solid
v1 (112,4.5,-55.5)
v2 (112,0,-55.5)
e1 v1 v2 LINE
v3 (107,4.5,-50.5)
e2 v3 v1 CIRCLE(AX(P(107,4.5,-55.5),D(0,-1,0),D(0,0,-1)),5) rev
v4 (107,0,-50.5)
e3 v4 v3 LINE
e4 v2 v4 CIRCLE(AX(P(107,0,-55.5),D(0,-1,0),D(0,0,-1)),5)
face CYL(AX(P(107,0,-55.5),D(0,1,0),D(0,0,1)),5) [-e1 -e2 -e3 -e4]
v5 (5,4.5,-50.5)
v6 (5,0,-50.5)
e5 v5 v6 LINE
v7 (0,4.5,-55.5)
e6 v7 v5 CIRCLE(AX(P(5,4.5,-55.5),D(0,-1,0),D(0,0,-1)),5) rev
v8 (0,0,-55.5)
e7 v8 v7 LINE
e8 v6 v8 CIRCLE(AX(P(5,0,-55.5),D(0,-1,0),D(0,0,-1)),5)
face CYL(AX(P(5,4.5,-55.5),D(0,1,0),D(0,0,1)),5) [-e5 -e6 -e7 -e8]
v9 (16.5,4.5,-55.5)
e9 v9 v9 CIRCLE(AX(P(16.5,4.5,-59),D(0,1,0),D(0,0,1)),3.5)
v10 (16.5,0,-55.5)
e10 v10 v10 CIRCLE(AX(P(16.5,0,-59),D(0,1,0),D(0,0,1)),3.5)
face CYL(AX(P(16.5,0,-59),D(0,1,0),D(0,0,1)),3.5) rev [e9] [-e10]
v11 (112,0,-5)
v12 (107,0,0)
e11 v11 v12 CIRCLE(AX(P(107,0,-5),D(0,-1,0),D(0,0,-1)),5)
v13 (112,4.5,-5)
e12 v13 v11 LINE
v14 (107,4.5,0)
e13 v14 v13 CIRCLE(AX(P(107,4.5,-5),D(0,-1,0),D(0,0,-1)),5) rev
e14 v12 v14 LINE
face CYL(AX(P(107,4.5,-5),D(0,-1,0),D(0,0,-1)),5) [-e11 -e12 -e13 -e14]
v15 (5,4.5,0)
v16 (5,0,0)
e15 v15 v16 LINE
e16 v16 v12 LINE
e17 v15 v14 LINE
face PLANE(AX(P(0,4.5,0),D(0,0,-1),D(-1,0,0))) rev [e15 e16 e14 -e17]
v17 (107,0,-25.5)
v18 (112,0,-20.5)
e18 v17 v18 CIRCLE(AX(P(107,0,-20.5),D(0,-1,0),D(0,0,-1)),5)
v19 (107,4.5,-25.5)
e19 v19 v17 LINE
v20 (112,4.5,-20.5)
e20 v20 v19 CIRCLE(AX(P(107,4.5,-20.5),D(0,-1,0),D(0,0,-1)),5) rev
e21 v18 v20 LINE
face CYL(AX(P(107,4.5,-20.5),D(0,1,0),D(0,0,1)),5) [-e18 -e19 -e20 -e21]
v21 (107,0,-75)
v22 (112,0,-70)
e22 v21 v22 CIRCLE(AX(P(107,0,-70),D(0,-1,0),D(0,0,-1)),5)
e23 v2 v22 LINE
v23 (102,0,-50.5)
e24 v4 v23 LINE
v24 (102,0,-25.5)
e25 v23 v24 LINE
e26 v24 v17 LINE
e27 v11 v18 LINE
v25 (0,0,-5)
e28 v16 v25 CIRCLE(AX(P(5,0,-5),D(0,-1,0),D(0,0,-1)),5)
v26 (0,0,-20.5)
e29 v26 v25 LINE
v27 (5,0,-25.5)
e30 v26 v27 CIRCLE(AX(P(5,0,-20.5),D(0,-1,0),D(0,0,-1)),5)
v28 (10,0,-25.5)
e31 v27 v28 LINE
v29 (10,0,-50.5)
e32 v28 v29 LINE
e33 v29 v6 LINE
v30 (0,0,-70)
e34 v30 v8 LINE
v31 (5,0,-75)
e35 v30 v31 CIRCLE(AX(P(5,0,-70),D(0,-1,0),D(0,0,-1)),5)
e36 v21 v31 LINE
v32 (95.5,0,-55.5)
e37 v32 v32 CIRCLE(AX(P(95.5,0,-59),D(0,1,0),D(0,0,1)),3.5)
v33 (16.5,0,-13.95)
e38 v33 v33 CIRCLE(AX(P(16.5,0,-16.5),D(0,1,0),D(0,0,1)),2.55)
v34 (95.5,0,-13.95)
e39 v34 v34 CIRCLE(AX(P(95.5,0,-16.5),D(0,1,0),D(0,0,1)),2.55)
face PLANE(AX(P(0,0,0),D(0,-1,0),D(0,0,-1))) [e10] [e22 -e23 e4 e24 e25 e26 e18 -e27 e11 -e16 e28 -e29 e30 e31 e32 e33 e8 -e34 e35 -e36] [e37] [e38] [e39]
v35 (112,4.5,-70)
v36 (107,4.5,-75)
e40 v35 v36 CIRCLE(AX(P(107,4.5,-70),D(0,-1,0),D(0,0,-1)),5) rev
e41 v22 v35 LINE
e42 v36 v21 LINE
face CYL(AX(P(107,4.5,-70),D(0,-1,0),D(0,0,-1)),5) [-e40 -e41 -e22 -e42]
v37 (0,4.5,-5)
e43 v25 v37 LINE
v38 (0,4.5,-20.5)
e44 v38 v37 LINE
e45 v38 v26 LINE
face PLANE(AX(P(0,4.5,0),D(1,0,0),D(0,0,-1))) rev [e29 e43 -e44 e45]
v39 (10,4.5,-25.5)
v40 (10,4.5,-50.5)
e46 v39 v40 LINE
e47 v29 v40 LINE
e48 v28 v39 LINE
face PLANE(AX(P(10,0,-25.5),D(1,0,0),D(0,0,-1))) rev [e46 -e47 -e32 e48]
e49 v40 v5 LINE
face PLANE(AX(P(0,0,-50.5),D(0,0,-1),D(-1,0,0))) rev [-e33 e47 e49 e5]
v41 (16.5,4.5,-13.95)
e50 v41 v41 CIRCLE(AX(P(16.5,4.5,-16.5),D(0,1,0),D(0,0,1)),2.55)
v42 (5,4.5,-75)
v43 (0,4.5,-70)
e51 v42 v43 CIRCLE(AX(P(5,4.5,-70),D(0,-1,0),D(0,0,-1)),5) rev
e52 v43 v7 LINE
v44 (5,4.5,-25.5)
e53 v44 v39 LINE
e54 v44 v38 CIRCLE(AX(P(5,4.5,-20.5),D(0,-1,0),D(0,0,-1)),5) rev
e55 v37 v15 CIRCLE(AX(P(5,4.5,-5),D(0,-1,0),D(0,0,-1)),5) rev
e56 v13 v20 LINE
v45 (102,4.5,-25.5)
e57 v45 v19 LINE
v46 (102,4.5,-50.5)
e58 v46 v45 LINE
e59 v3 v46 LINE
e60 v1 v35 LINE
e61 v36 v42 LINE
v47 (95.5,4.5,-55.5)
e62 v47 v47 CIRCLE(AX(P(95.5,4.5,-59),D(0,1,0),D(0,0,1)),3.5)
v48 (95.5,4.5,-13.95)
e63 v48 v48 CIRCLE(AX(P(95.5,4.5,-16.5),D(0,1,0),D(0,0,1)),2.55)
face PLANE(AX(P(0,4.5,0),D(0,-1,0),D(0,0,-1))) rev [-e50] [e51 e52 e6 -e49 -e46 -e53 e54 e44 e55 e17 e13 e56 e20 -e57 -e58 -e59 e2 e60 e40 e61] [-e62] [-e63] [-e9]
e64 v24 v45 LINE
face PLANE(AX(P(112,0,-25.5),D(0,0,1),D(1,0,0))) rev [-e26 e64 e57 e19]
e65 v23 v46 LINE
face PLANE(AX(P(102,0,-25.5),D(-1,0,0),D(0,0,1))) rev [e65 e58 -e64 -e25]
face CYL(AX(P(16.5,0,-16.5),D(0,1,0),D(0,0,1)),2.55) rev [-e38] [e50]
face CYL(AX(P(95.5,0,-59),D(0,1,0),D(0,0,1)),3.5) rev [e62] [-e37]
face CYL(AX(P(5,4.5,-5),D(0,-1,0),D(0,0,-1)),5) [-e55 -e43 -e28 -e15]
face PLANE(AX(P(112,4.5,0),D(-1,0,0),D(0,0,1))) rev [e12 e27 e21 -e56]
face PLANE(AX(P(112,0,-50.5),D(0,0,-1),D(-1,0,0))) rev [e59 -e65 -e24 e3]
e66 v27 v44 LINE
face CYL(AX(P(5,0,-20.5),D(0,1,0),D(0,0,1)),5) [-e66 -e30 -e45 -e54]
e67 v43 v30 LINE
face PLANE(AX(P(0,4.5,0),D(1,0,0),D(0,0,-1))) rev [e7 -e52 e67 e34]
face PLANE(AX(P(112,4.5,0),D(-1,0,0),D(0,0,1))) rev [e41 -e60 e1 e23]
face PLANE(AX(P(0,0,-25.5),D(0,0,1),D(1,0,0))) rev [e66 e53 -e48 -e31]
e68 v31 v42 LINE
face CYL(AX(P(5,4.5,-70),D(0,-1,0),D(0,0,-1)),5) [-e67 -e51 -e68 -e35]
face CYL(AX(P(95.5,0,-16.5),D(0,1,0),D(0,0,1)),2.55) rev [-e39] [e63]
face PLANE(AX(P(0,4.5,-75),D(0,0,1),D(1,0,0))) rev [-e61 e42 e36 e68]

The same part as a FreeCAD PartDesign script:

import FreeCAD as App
import Part
import Sketcher

V = App.Vector


def edges_at(feature, points):
    """Names of the edges that pass closest to the given points."""
    edges = feature.Shape.Edges
    near = lambda p: min(range(len(edges)), key=lambda i: edges[i].distToShape(Part.Vertex(*p))[0])
    return sorted({f"Edge{near(p) + 1}" for p in points})


def add_polygon(sketch, points):
    """Adds a closed chain of lines whose ends are joined by coincident constraints."""
    first, n = sketch.GeometryCount, len(points)
    for a, b in zip(points, points[1:] + points[:1]):
        sketch.addGeometry(Part.LineSegment(App.Vector(*a, 0), App.Vector(*b, 0)), False)
    for i in range(n):
        sketch.addConstraint(Sketcher.Constraint("Coincident", first + i, 2, first + (i + 1) % n, 1))

doc = App.newDocument("Part")
body = doc.addObject("PartDesign::Body", "Body")

sketch1 = body.newObject("Sketcher::SketchObject", "Sketch")
sketch1.AttachmentSupport = (doc.getObject("XZ_Plane"), [""])
sketch1.MapMode = "FlatFace"
add_polygon(sketch1, [(0, -75), (0, 0), (112, 0), (112, -75)])
sketch1.addConstraint(Sketcher.Constraint("Vertical", 0))
sketch1.addConstraint(Sketcher.Constraint("Horizontal", 1))
sketch1.addConstraint(Sketcher.Constraint("Vertical", 2))
sketch1.addConstraint(Sketcher.Constraint("Horizontal", 3))
sketch1.addConstraint(Sketcher.Constraint("Coincident", 0, 2, -1, 1))
sketch1.addConstraint(Sketcher.Constraint("DistanceX", 1, 1, 1, 2, 112.0))
sketch1.addConstraint(Sketcher.Constraint("DistanceY", 0, 1, 0, 2, 75.0))
pad1 = body.newObject("PartDesign::Pad", "Pad")
pad1.Profile = sketch1
pad1.Length = 4.5
pad1.Reversed = True

sketch2 = body.newObject("Sketcher::SketchObject", "Sketch001")
sketch2.AttachmentSupport = (doc.getObject("XZ_Plane"), [""])
sketch2.MapMode = "FlatFace"
sketch2.AttachmentOffset = App.Placement(V(0, 0, -4.5), App.Rotation())
sketch2.addGeometry(Part.Circle(V(95.5, -16.5, 0), V(0, 0, 1), 2.5), False)
sketch2.addGeometry(Part.Circle(V(16.5, -16.5, 0), V(0, 0, 1), 2.5), False)
sketch2.addGeometry(Part.Circle(V(16.5, -59, 0), V(0, 0, 1), 3.5), False)
sketch2.addGeometry(Part.Circle(V(95.5, -59, 0), V(0, 0, 1), 3.5), False)
add_polygon(sketch2, [(0, -50.5), (0, -25.5), (10, -25.5), (10, -50.5)])
add_polygon(sketch2, [(102, -50.5), (102, -25.5), (112, -25.5), (112, -50.5)])
sketch2.addConstraint(Sketcher.Constraint("Vertical", 4))
sketch2.addConstraint(Sketcher.Constraint("Horizontal", 5))
sketch2.addConstraint(Sketcher.Constraint("Vertical", 6))
sketch2.addConstraint(Sketcher.Constraint("Horizontal", 7))
sketch2.addConstraint(Sketcher.Constraint("Vertical", 8))
sketch2.addConstraint(Sketcher.Constraint("Horizontal", 9))
sketch2.addConstraint(Sketcher.Constraint("Vertical", 10))
sketch2.addConstraint(Sketcher.Constraint("Horizontal", 11))
sketch2.addConstraint(Sketcher.Constraint("Equal", 0, 1))
sketch2.addConstraint(Sketcher.Constraint("Equal", 2, 3))
sketch2.addConstraint(Sketcher.Constraint("PointOnObject", 4, 2, -2))
sketch2.addConstraint(Sketcher.Constraint("Horizontal", 0, 3, 1, 3))
sketch2.addConstraint(Sketcher.Constraint("Horizontal", 2, 3, 3, 3))
sketch2.addConstraint(Sketcher.Constraint("Horizontal", 5, 2, 8, 2))
sketch2.addConstraint(Sketcher.Constraint("Horizontal", 7, 2, 10, 2))
sketch2.addConstraint(Sketcher.Constraint("Vertical", 1, 3, 2, 3))
sketch2.addConstraint(Sketcher.Constraint("Vertical", 0, 3, 3, 3))
sketch2.addConstraint(Sketcher.Constraint("Equal", 7, 9))
sketch2.addConstraint(Sketcher.Constraint("Diameter", 2, 7.0))
sketch2.addConstraint(Sketcher.Constraint("Diameter", 0, 5.1))
sketch2.addConstraint(Sketcher.Constraint("DistanceX", 5, 1, 5, 2, 10.0))
sketch2.addConstraint(Sketcher.Constraint("DistanceY", 4, 1, 4, 2, 25.0))
sketch2.addConstraint(Sketcher.Constraint("DistanceY", 2, 3, -1, 1, 59.0))
sketch2.addConstraint(Sketcher.Constraint("DistanceX", -1, 1, 8, 2, 102.0))
sketch2.addConstraint(Sketcher.Constraint("DistanceX", 1, 3, 0, 3, 79.0))
sketch2.addConstraint(Sketcher.Constraint("DistanceY", 4, 2, 1, 3, 9.0))
sketch2.addConstraint(Sketcher.Constraint("DistanceX", -1, 1, 0, 3, 95.5))
sketch2.addConstraint(Sketcher.Constraint("DistanceY", 0, 3, -1, 1, 16.5))
pocket1 = body.newObject("PartDesign::Pocket", "Pocket")
pocket1.Profile = sketch2
pocket1.Type = "ThroughAll"
pocket1.Reversed = True
doc.recompute()

fillet = body.newObject("PartDesign::Fillet", "Fillet")
fillet.Base = (pocket1, edges_at(pocket1, [
    (112, 2.25, -50.5),
    (112, 2.25, -25.5),
    (0, 2.25, -25.5),
    (0, 2.25, -50.5),
    (0, 2.25, -75),
    (112, 2.25, -75),
    (112, 2.25, 0),
    (0, 2.25, 0),
]))
fillet.Radius = 5

doc.recompute()
